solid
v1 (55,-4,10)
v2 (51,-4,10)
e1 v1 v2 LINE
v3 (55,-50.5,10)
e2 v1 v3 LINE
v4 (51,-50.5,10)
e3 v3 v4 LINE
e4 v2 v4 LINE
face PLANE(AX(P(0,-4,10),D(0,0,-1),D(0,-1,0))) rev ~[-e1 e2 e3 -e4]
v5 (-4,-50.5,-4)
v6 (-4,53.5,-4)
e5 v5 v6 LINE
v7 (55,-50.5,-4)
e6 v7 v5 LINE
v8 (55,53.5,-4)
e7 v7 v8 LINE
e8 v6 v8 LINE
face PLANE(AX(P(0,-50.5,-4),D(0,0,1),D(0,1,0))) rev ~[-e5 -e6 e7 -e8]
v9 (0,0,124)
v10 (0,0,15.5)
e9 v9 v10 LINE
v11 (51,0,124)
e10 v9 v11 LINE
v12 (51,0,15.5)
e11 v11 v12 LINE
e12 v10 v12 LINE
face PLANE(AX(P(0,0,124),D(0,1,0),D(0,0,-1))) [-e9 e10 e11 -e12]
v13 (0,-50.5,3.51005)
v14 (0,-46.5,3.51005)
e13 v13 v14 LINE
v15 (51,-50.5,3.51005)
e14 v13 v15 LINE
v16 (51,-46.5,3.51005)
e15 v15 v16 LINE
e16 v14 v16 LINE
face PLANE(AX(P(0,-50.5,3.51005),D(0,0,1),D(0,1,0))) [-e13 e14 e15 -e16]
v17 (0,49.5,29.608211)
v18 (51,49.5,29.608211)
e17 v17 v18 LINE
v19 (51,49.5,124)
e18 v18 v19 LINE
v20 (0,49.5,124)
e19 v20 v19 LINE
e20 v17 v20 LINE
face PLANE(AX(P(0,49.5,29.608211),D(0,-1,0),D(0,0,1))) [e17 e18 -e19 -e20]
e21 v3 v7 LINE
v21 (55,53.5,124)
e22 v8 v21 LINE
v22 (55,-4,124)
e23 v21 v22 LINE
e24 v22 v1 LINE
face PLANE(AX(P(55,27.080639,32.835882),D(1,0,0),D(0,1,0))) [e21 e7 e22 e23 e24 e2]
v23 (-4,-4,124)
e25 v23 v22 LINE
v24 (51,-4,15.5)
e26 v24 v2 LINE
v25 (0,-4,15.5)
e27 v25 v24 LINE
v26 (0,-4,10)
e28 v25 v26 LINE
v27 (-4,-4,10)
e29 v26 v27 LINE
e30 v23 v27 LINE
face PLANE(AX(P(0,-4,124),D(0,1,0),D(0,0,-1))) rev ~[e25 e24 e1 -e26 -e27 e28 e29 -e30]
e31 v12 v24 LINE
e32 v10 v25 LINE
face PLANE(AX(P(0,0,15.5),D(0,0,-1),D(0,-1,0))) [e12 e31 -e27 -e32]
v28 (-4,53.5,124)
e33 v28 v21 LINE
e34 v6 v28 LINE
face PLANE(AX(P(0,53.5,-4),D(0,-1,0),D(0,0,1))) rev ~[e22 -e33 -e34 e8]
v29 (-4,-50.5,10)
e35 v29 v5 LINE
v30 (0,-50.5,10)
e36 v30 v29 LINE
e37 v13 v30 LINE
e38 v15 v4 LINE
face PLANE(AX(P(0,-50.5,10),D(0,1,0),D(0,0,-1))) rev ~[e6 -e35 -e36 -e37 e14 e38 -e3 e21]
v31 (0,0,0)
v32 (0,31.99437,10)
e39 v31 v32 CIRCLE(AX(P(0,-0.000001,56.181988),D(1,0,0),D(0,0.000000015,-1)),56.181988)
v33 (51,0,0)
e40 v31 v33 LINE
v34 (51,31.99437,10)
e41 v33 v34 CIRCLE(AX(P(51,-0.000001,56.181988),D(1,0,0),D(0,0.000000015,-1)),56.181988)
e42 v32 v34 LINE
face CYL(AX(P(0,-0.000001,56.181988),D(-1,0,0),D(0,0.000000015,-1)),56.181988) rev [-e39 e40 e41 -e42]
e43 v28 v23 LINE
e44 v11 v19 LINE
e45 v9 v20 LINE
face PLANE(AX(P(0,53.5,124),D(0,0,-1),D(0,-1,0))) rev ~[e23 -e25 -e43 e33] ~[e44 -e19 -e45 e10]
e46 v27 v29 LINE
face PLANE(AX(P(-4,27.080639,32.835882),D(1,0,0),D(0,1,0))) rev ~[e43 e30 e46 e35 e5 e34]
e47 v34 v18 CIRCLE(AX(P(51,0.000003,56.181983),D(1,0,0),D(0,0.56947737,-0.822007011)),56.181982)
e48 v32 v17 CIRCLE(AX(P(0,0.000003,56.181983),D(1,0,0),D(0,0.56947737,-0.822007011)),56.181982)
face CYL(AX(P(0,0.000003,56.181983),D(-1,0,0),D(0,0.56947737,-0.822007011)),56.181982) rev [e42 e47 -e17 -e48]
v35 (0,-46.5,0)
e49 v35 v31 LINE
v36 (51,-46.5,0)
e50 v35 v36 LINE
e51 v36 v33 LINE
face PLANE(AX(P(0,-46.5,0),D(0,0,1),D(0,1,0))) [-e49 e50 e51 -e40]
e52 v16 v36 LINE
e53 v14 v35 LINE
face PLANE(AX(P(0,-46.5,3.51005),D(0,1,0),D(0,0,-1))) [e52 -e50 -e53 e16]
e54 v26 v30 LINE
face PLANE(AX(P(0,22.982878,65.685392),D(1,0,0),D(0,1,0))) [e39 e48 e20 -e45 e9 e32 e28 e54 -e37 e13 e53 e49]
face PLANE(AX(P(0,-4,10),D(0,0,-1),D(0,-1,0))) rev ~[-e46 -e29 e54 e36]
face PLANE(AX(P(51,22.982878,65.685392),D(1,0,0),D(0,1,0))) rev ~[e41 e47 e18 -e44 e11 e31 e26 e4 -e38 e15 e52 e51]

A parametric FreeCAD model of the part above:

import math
import FreeCAD as App
import Part
import Sketcher
Q = App.Units.Quantity

doc = App.newDocument("Part")
body = doc.addObject("PartDesign::Body", "Body")

# Sketch on YZ plane
sketch1 = body.newObject("Sketcher::SketchObject", "Sketch")
sketch1.AttachmentSupport = (doc.getObject("YZ_Plane"), [""])
sketch1.MapMode = "FlatFace"
sketch1.addGeometry([
    Part.LineSegment(App.Vector(-50, -4, 0), App.Vector(54, -4, 0)),  # 0
    Part.LineSegment(App.Vector(54, -4, 0), App.Vector(54, 124, 0)),  # 1
    Part.LineSegment(App.Vector(54, 124, 0), App.Vector(-4, 124, 0)),  # 2
    Part.LineSegment(App.Vector(-4, 124, 0), App.Vector(-4, 10, 0)),  # 3
    Part.LineSegment(App.Vector(-4, 10, 0), App.Vector(-50, 10, 0)),  # 4
    Part.LineSegment(App.Vector(-50, 10, 0), App.Vector(-50, -4, 0)),  # 5
], False)
sketch1.addConstraint([
    Sketcher.Constraint("Coincident", 0, 2, 1, 1),
    Sketcher.Constraint("Coincident", 1, 2, 2, 1),
    Sketcher.Constraint("Coincident", 2, 2, 3, 1),
    Sketcher.Constraint("Coincident", 3, 2, 4, 1),
    Sketcher.Constraint("Coincident", 4, 2, 5, 1),
    Sketcher.Constraint("Coincident", 5, 2, 0, 1),
    Sketcher.Constraint("Horizontal", 0),
    Sketcher.Constraint("Vertical", 1),
    Sketcher.Constraint("Horizontal", 2),
    Sketcher.Constraint("Vertical", 3),
    Sketcher.Constraint("Horizontal", 4),
    Sketcher.Constraint("Vertical", 5),
    Sketcher.Constraint("DistanceX", 0, 1, 0, 2, Q("104 mm")),
    Sketcher.Constraint("DistanceY", 1, 1, 1, 2, Q("128 mm")),
    Sketcher.Constraint("DistanceY", 3, 2, 3, 1, Q("114 mm")),
    Sketcher.Constraint("DistanceX", 2, 2, 2, 1, Q("57.5 mm")),
    Sketcher.Constraint("DistanceY", 0, 2, -1, 1, Q("4 mm")),
    Sketcher.Constraint("DistanceX", 2, 2, -1, 1, Q("4 mm")),
])
pad1 = body.newObject("PartDesign::Pad", "Pad")
pad1.Profile = sketch1
pad1.Length = 4
pad1.Reversed = True

# Sketch on YZ plane
sketch2 = body.newObject("Sketcher::SketchObject", "Sketch001")
sketch2.AttachmentSupport = (doc.getObject("YZ_Plane"), [""])
sketch2.MapMode = "FlatFace"
sketch2.addGeometry([
    Part.LineSegment(App.Vector(-50, -4, 0), App.Vector(54, -4, 0)),  # 0
    Part.LineSegment(App.Vector(54, -4, 0), App.Vector(54, 124, 0)),  # 1
    Part.LineSegment(App.Vector(54, 124, 0), App.Vector(-4, 124, 0)),  # 2
    Part.LineSegment(App.Vector(-4, 124, 0), App.Vector(-4, 10, 0)),  # 3
    Part.LineSegment(App.Vector(-4, 10, 0), App.Vector(-50, 10, 0)),  # 4
    Part.LineSegment(App.Vector(-50, 10, 0), App.Vector(-50, -4, 0)),  # 5
], False)
sketch2.addConstraint([
    Sketcher.Constraint("Coincident", 0, 2, 1, 1),
    Sketcher.Constraint("Coincident", 1, 2, 2, 1),
    Sketcher.Constraint("Coincident", 2, 2, 3, 1),
    Sketcher.Constraint("Coincident", 3, 2, 4, 1),
    Sketcher.Constraint("Coincident", 4, 2, 5, 1),
    Sketcher.Constraint("Coincident", 5, 2, 0, 1),
    Sketcher.Constraint("Horizontal", 0),
    Sketcher.Constraint("Vertical", 1),
    Sketcher.Constraint("Horizontal", 2),
    Sketcher.Constraint("Vertical", 3),
    Sketcher.Constraint("Horizontal", 4),
    Sketcher.Constraint("Vertical", 5),
    Sketcher.Constraint("DistanceX", 0, 1, 0, 2, Q("104 mm")),
    Sketcher.Constraint("DistanceY", 1, 1, 1, 2, Q("128 mm")),
    Sketcher.Constraint("DistanceY", 3, 2, 3, 1, Q("114 mm")),
    Sketcher.Constraint("DistanceX", 2, 2, 2, 1, Q("57.5 mm")),
    Sketcher.Constraint("DistanceY", 0, 2, -1, 1, Q("4 mm")),
    Sketcher.Constraint("DistanceX", 2, 2, -1, 1, Q("4 mm")),
])
pad2 = body.newObject("PartDesign::Pad", "Pad001")
pad2.Profile = sketch2
pad2.Length = 55

# Sketch on YZ plane
sketch3 = body.newObject("Sketcher::SketchObject", "Sketch002")
sketch3.AttachmentSupport = (doc.getObject("YZ_Plane"), [""])
sketch3.MapMode = "FlatFace"
sketch3.addGeometry([
    Part.ArcOfCircle(Part.Circle(App.Vector(0, 56.2, 0), App.Vector(0, 0, 1), 56.2), math.radians(-55), math.radians(-28)),  # 0
    Part.LineSegment(App.Vector(49.5, 29.6, 0), App.Vector(49.5, 124, 0)),  # 1
    Part.LineSegment(App.Vector(49.5, 124, 0), App.Vector(0, 124, 0)),  # 2
    Part.LineSegment(App.Vector(0, 124, 0), App.Vector(0, 15.5, 0)),  # 3
    Part.LineSegment(App.Vector(0, 15.5, 0), App.Vector(-4, 15.5, 0)),  # 4
    Part.LineSegment(App.Vector(-4, 15.5, 0), App.Vector(-4, 10, 0)),  # 5
    Part.LineSegment(App.Vector(-4, 10, 0), App.Vector(-50.5, 10, 0)),  # 6
    Part.LineSegment(App.Vector(-50.5, 10, 0), App.Vector(-50.5, 3.5, 0)),  # 7
    Part.LineSegment(App.Vector(-50.5, 3.5, 0), App.Vector(-46.5, 3.5, 0)),  # 8
    Part.LineSegment(App.Vector(-46.5, 3.5, 0), App.Vector(-46.5, 0, 0)),  # 9
    Part.LineSegment(App.Vector(-46.5, 0, 0), App.Vector(0, 0, 0)),  # 10
    Part.ArcOfCircle(Part.Circle(App.Vector(0, 56.2, 0), App.Vector(0, 0, 1), 56.2), math.radians(-90), math.radians(-55)),  # 11
], False)
sketch3.addConstraint([
    Sketcher.Constraint("Coincident", 0, 2, 1, 1),
    Sketcher.Constraint("Coincident", 1, 2, 2, 1),
    Sketcher.Constraint("Coincident", 2, 2, 3, 1),
    Sketcher.Constraint("Coincident", 3, 2, 4, 1),
    Sketcher.Constraint("Coincident", 4, 2, 5, 1),
    Sketcher.Constraint("Coincident", 5, 2, 6, 1),
    Sketcher.Constraint("Coincident", 6, 2, 7, 1),
    Sketcher.Constraint("Coincident", 7, 2, 8, 1),
    Sketcher.Constraint("Coincident", 8, 2, 9, 1),
    Sketcher.Constraint("Coincident", 9, 2, 10, 1),
    Sketcher.Constraint("Tangent", 10, 2, 11, 1),
    Sketcher.Constraint("Tangent", 11, 2, 0, 1),
    Sketcher.Constraint("Vertical", 1),
    Sketcher.Constraint("Horizontal", 2),
    Sketcher.Constraint("Vertical", 3),
    Sketcher.Constraint("Horizontal", 4),
    Sketcher.Constraint("Vertical", 5),
    Sketcher.Constraint("Horizontal", 6),
    Sketcher.Constraint("Vertical", 7),
    Sketcher.Constraint("Horizontal", 8),
    Sketcher.Constraint("Vertical", 9),
    Sketcher.Constraint("Horizontal", 10),
    Sketcher.Constraint("Coincident", 10, 2, -1, 1),
    Sketcher.Constraint("PointOnObject", 2, 2, -2),
    Sketcher.Constraint("Horizontal", 6, 2, 11, 2),
    Sketcher.Constraint("Equal", 4, 8),
    Sketcher.Constraint("DistanceX", 4, 2, 4, 1, Q("4 mm")),
    Sketcher.Constraint("DistanceX", 2, 2, 2, 1, Q("49.5 mm")),
    Sketcher.Constraint("DistanceX", 6, 2, 6, 1, Q("46.5 mm")),
    Sketcher.Constraint("DistanceY", 3, 2, 3, 1, Q("108.5 mm")),
    Sketcher.Constraint("DistanceY", 5, 2, 5, 1, Q("5.5 mm")),
    Sketcher.Constraint("DistanceY", -1, 1, 1, 2, Q("124 mm")),
    Sketcher.Constraint("Radius", 0, Q("56.181982 mm")),
    Sketcher.Constraint("Radius", 11, Q("56.181988 mm")),
    Sketcher.Constraint("DistanceY", 7, 2, 7, 1, Q("6.48995 mm")),
])
pocket1 = body.newObject("PartDesign::Pocket", "Pocket")
pocket1.Profile = sketch3
pocket1.Length = 51
pocket1.Reversed = True

doc.recompute()
